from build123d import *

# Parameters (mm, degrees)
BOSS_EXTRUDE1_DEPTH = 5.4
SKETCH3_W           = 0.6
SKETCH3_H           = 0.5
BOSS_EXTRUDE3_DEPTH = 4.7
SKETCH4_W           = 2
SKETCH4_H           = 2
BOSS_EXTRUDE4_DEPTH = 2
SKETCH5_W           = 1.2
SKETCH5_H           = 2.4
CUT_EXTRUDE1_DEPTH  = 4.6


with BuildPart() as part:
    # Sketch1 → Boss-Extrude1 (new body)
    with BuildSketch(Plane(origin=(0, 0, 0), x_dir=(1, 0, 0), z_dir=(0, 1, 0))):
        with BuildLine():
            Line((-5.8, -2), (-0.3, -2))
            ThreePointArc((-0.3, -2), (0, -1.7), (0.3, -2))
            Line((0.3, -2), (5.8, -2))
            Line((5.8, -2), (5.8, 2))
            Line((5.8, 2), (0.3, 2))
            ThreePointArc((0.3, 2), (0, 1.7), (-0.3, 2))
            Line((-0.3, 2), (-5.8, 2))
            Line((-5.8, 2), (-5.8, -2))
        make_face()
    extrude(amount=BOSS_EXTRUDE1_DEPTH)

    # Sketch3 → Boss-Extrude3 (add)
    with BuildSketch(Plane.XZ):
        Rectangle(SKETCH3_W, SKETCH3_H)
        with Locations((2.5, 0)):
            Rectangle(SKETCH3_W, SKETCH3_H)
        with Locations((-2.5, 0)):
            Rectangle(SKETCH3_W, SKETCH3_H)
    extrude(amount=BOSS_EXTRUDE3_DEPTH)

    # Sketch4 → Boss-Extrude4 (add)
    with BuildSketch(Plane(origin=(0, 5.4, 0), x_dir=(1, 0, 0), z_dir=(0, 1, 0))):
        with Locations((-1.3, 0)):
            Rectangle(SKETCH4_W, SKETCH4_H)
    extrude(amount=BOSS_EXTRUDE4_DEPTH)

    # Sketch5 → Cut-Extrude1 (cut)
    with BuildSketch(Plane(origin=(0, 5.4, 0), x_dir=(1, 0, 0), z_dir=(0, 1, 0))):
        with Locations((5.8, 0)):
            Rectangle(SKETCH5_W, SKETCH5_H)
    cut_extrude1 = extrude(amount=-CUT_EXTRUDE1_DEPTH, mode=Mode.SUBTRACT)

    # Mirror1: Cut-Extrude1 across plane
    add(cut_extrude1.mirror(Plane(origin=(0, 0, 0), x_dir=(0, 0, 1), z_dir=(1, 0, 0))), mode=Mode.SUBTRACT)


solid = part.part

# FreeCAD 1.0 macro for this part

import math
import FreeCAD as App
import Part
import Sketcher
from FreeCAD import Vector

doc = App.newDocument("Part")
params = doc.addObject("Spreadsheet::Sheet", "Params")
for row, (alias, value) in enumerate([
    ("sketch1_radius", "0.3 mm"),
    ("sketch1_height", "4 mm"),
    ("sketch1_width", "5.5 mm"),
    ("pad1_length", "5.4 mm"),
    ("sketch2_width", "0.6 mm"),
    ("sketch2_height", "0.5 mm"),
    ("pad2_length", "4.7 mm"),
    ("sketch3_width", "2 mm"),
    ("pad3_length", "2 mm"),
    ("sketch4_width", "1.2 mm"),
    ("sketch4_height", "2.4 mm"),
    ("pocket1_length", "4.6 mm"),
], start=1):
    params.set(f"A{row}", alias)
    params.set(f"B{row}", "=" + value)
    params.setAlias(f"B{row}", alias)

body = doc.addObject("PartDesign::Body", "Body")

sketch1 = doc.addObject("Sketcher::SketchObject", "Sketch")
body.addObject(sketch1)
sketch1.AttachmentSupport = (doc.XZ_Plane, [""])
sketch1.MapMode = "FlatFace"
sketch1.addGeometry(Part.LineSegment(Vector(-5.8, 2, 0), Vector(-0.3, 2, 0)), False)
sketch1.addGeometry(Part.ArcOfCircle(Part.Circle(Vector(0, 2, 0), Vector(0, 0, 1), 0.3), math.radians(180), math.radians(360)), False)
sketch1.addGeometry(Part.LineSegment(Vector(0.3, 2, 0), Vector(5.8, 2, 0)), False)
sketch1.addGeometry(Part.LineSegment(Vector(5.8, 2, 0), Vector(5.8, -2, 0)), False)
sketch1.addGeometry(Part.LineSegment(Vector(5.8, -2, 0), Vector(0.3, -2, 0)), False)
sketch1.addGeometry(Part.ArcOfCircle(Part.Circle(Vector(0, -2, 0), Vector(0, 0, 1), 0.3), math.radians(0), math.radians(180)), False)
sketch1.addGeometry(Part.LineSegment(Vector(-0.3, -2, 0), Vector(-5.8, -2, 0)), False)
sketch1.addGeometry(Part.LineSegment(Vector(-5.8, -2, 0), Vector(-5.8, 2, 0)), False)
sketch1.addConstraint(Sketcher.Constraint("Coincident", 0, 2, 1, 1))
sketch1.addConstraint(Sketcher.Constraint("Coincident", 1, 2, 2, 1))
sketch1.addConstraint(Sketcher.Constraint("Coincident", 2, 2, 3, 1))
sketch1.addConstraint(Sketcher.Constraint("Coincident", 3, 2, 4, 1))
sketch1.addConstraint(Sketcher.Constraint("Coincident", 4, 2, 5, 1))
sketch1.addConstraint(Sketcher.Constraint("Coincident", 5, 2, 6, 1))
sketch1.addConstraint(Sketcher.Constraint("Coincident", 6, 2, 7, 1))
sketch1.addConstraint(Sketcher.Constraint("Coincident", 7, 2, 0, 1))
sketch1.addConstraint(Sketcher.Constraint("Horizontal", 0))
sketch1.addConstraint(Sketcher.Constraint("Horizontal", 2))
sketch1.addConstraint(Sketcher.Constraint("Vertical", 3))
sketch1.addConstraint(Sketcher.Constraint("Horizontal", 4))
sketch1.addConstraint(Sketcher.Constraint("Horizontal", 6))
sketch1.addConstraint(Sketcher.Constraint("Vertical", 7))
sketch1.addConstraint(Sketcher.Constraint("Equal", 1, 5))
sketch1.addConstraint(Sketcher.Constraint("Symmetric", 1, 3, 5, 3, -1, 1))
sketch1.addConstraint(Sketcher.Constraint("Symmetric", 2, 2, 6, 2, -1, 1))
sketch1.addConstraint(Sketcher.Constraint("Symmetric", 0, 2, 1, 2, -2))
sketch1.addConstraint(Sketcher.Constraint("Horizontal", 1, 3, 0, 2))
sketch1.addConstraint(Sketcher.Constraint("Horizontal", 5, 3, 3, 2))
sketch1.addConstraint(Sketcher.Constraint("Radius", 1, 0.3))
sketch1.addConstraint(Sketcher.Constraint("DistanceY", 3, 2, 3, 1, 4.0))
sketch1.addConstraint(Sketcher.Constraint("DistanceX", 0, 1, 0, 2, 5.5))
sketch1.setExpression("Constraints[20]", "Params.sketch1_radius")
sketch1.setExpression("Constraints[21]", "Params.sketch1_height")
sketch1.setExpression("Constraints[22]", "Params.sketch1_width")
pad1 = doc.addObject("PartDesign::Pad", "Pad")
body.addObject(pad1)
pad1.Profile = sketch1
pad1.setExpression("Length", "Params.pad1_length")
pad1.Reversed = True

sketch2 = doc.addObject("Sketcher::SketchObject", "Sketch001")
body.addObject(sketch2)
sketch2.AttachmentSupport = (doc.XZ_Plane, [""])
sketch2.MapMode = "FlatFace"
sketch2.addGeometry(Part.LineSegment(Vector(-0.3, 0.2, 0), Vector(-0.3, -0.2, 0)), False)
sketch2.addGeometry(Part.LineSegment(Vector(-0.3, -0.2, 0), Vector(0.3, -0.2, 0)), False)
sketch2.addGeometry(Part.LineSegment(Vector(0.3, -0.2, 0), Vector(0.3, 0.2, 0)), False)
sketch2.addGeometry(Part.LineSegment(Vector(0.3, 0.2, 0), Vector(-0.3, 0.2, 0)), False)
sketch2.addGeometry(Part.LineSegment(Vector(2.2, 0.2, 0), Vector(2.2, -0.2, 0)), False)
sketch2.addGeometry(Part.LineSegment(Vector(2.2, -0.2, 0), Vector(2.8, -0.2, 0)), False)
sketch2.addGeometry(Part.LineSegment(Vector(2.8, -0.2, 0), Vector(2.8, 0.2, 0)), False)
sketch2.addGeometry(Part.LineSegment(Vector(2.8, 0.2, 0), Vector(2.2, 0.2, 0)), False)
sketch2.addGeometry(Part.LineSegment(Vector(-2.8, 0.2, 0), Vector(-2.8, -0.2, 0)), False)
sketch2.addGeometry(Part.LineSegment(Vector(-2.8, -0.2, 0), Vector(-2.2, -0.2, 0)), False)
sketch2.addGeometry(Part.LineSegment(Vector(-2.2, -0.2, 0), Vector(-2.2, 0.2, 0)), False)
sketch2.addGeometry(Part.LineSegment(Vector(-2.2, 0.2, 0), Vector(-2.8, 0.2, 0)), False)
sketch2.addConstraint(Sketcher.Constraint("Coincident", 0, 2, 1, 1))
sketch2.addConstraint(Sketcher.Constraint("Coincident", 1, 2, 2, 1))
sketch2.addConstraint(Sketcher.Constraint("Coincident", 2, 2, 3, 1))
sketch2.addConstraint(Sketcher.Constraint("Coincident", 3, 2, 0, 1))
sketch2.addConstraint(Sketcher.Constraint("Coincident", 4, 2, 5, 1))
sketch2.addConstraint(Sketcher.Constraint("Coincident", 5, 2, 6, 1))
sketch2.addConstraint(Sketcher.Constraint("Coincident", 6, 2, 7, 1))
sketch2.addConstraint(Sketcher.Constraint("Coincident", 7, 2, 4, 1))
sketch2.addConstraint(Sketcher.Constraint("Coincident", 8, 2, 9, 1))
sketch2.addConstraint(Sketcher.Constraint("Coincident", 9, 2, 10, 1))
sketch2.addConstraint(Sketcher.Constraint("Coincident", 10, 2, 11, 1))
sketch2.addConstraint(Sketcher.Constraint("Coincident", 11, 2, 8, 1))
sketch2.addConstraint(Sketcher.Constraint("Vertical", 0))
sketch2.addConstraint(Sketcher.Constraint("Horizontal", 1))
sketch2.addConstraint(Sketcher.Constraint("Vertical", 2))
sketch2.addConstraint(Sketcher.Constraint("Horizontal", 3))
sketch2.addConstraint(Sketcher.Constraint("Vertical", 4))
sketch2.addConstraint(Sketcher.Constraint("Horizontal", 5))
sketch2.addConstraint(Sketcher.Constraint("Vertical", 6))
sketch2.addConstraint(Sketcher.Constraint("Horizontal", 7))
sketch2.addConstraint(Sketcher.Constraint("Vertical", 8))
sketch2.addConstraint(Sketcher.Constraint("Horizontal", 9))
sketch2.addConstraint(Sketcher.Constraint("Vertical", 10))
sketch2.addConstraint(Sketcher.Constraint("Horizontal", 11))
sketch2.addConstraint(Sketcher.Constraint("Symmetric", 0, 2, 2, 2, -1, 1))
sketch2.addConstraint(Sketcher.Constraint("Symmetric", 6, 2, 8, 2, -1, 1))
sketch2.addConstraint(Sketcher.Constraint("Symmetric", 4, 2, 10, 2, -1, 1))
sketch2.addConstraint(Sketcher.Constraint("Horizontal", 1, 2, 4, 2))
sketch2.addConstraint(Sketcher.Constraint("Horizontal", 3, 2, 6, 2))
sketch2.addConstraint(Sketcher.Constraint("Equal", 3, 5))
sketch2.addConstraint(Sketcher.Constraint("DistanceX", 1, 1, 1, 2, 0.6))
sketch2.addConstraint(Sketcher.Constraint("DistanceY", 0, 2, 0, 1, 0.5))
sketch2.addConstraint(Sketcher.Constraint("DistanceX", 8, 2, 4, 2, 5.0))
sketch2.setExpression("Constraints[30]", "Params.sketch2_width")
sketch2.setExpression("Constraints[31]", "Params.sketch2_height")
pad2 = doc.addObject("PartDesign::Pad", "Pad001")
body.addObject(pad2)
pad2.Profile = sketch2
pad2.setExpression("Length", "Params.pad2_length")

sketch3 = doc.addObject("Sketcher::SketchObject", "Sketch002")
body.addObject(sketch3)
sketch3.AttachmentSupport = (doc.XZ_Plane, [""])
sketch3.MapMode = "FlatFace"
sketch3.AttachmentOffset = App.Placement(Vector(0, 0, -5.4), App.Rotation())
sketch3.addGeometry(Part.LineSegment(Vector(-2.3, -1, 0), Vector(-2.3, 1, 0)), False)
sketch3.addGeometry(Part.LineSegment(Vector(-2.3, 1, 0), Vector(-0.3, 1, 0)), False)
sketch3.addGeometry(Part.LineSegment(Vector(-0.3, 1, 0), Vector(-0.3, -1, 0)), False)
sketch3.addGeometry(Part.LineSegment(Vector(-0.3, -1, 0), Vector(-2.3, -1, 0)), False)
sketch3.addConstraint(Sketcher.Constraint("Coincident", 0, 2, 1, 1))
sketch3.addConstraint(Sketcher.Constraint("Coincident", 1, 2, 2, 1))
sketch3.addConstraint(Sketcher.Constraint("Coincident", 2, 2, 3, 1))
sketch3.addConstraint(Sketcher.Constraint("Coincident", 3, 2, 0, 1))
sketch3.addConstraint(Sketcher.Constraint("Vertical", 0))
sketch3.addConstraint(Sketcher.Constraint("Horizontal", 1))
sketch3.addConstraint(Sketcher.Constraint("Vertical", 2))
sketch3.addConstraint(Sketcher.Constraint("Horizontal", 3))
sketch3.addConstraint(Sketcher.Constraint("Equal", 3, 0))
sketch3.addConstraint(Sketcher.Constraint("DistanceX", 1, 1, 1, 2, 2.0))
sketch3.addConstraint(Sketcher.Constraint("DistanceY", -1, 1, 0, 2, 1.0))
sketch3.addConstraint(Sketcher.Constraint("DistanceX", 0, 2, -1, 1, 2.3))
sketch3.setExpression("Constraints[9]", "Params.sketch3_width")
pad3 = doc.addObject("PartDesign::Pad", "Pad002")
body.addObject(pad3)
pad3.Profile = sketch3
pad3.setExpression("Length", "Params.pad3_length")
pad3.Reversed = True

sketch4 = doc.addObject("Sketcher::SketchObject", "Sketch003")
body.addObject(sketch4)
sketch4.AttachmentSupport = (doc.XZ_Plane, [""])
sketch4.MapMode = "FlatFace"
sketch4.AttachmentOffset = App.Placement(Vector(0, 0, -5.4), App.Rotation())
sketch4.addGeometry(Part.LineSegment(Vector(5.2, -1.2, 0), Vector(5.2, 1.2, 0)), False)
sketch4.addGeometry(Part.LineSegment(Vector(5.2, 1.2, 0), Vector(6.4, 1.2, 0)), False)
sketch4.addGeometry(Part.LineSegment(Vector(6.4, 1.2, 0), Vector(6.4, -1.2, 0)), False)
sketch4.addGeometry(Part.LineSegment(Vector(6.4, -1.2, 0), Vector(5.2, -1.2, 0)), False)
sketch4.addConstraint(Sketcher.Constraint("Coincident", 0, 2, 1, 1))
sketch4.addConstraint(Sketcher.Constraint("Coincident", 1, 2, 2, 1))
sketch4.addConstraint(Sketcher.Constraint("Coincident", 2, 2, 3, 1))
sketch4.addConstraint(Sketcher.Constraint("Coincident", 3, 2, 0, 1))
sketch4.addConstraint(Sketcher.Constraint("Vertical", 0))
sketch4.addConstraint(Sketcher.Constraint("Horizontal", 1))
sketch4.addConstraint(Sketcher.Constraint("Vertical", 2))
sketch4.addConstraint(Sketcher.Constraint("Horizontal", 3))
sketch4.addConstraint(Sketcher.Constraint("DistanceX", 1, 1, 1, 2, 1.2))
sketch4.addConstraint(Sketcher.Constraint("DistanceY", 0, 1, 0, 2, 2.4))
sketch4.addConstraint(Sketcher.Constraint("DistanceX", -1, 1, 0, 2, 5.2))
sketch4.addConstraint(Sketcher.Constraint("DistanceY", -1, 1, 0, 2, 1.2))
sketch4.setExpression("Constraints[8]", "Params.sketch4_width")
sketch4.setExpression("Constraints[9]", "Params.sketch4_height")
pocket1 = doc.addObject("PartDesign::Pocket", "Pocket")
body.addObject(pocket1)
pocket1.Profile = sketch4
pocket1.setExpression("Length", "Params.pocket1_length")
pocket1.Reversed = True
doc.recompute()

mirrored = doc.addObject("PartDesign::Mirrored", "Mirrored")
body.addObject(mirrored)
mirrored.Originals = [pocket1]
mirrored.MirrorPlane = (doc.YZ_Plane, [""])
body.Tip = mirrored

doc.recompute()
